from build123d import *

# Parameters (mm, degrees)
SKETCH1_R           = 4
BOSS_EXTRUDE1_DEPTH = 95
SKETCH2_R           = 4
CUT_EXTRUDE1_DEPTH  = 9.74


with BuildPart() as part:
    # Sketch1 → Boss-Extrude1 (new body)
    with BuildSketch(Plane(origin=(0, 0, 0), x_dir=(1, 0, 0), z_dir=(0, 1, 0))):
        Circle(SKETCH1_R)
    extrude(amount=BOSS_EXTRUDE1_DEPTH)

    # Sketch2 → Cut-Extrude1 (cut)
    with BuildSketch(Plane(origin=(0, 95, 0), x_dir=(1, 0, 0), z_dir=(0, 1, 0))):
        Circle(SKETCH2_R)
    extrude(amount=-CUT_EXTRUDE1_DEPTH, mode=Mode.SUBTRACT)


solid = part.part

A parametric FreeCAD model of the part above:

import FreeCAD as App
import Part
import Sketcher

V = App.Vector
Q = App.Units.Quantity

doc = App.newDocument("Part")
body = doc.addObject("PartDesign::Body", "Body")

sketch1 = body.newObject("Sketcher::SketchObject", "Sketch")
sketch1.AttachmentSupport = (doc.getObject("XZ_Plane"), [""])
sketch1.MapMode = "FlatFace"
sketch1.addGeometry(Part.Circle(V(0, 0, 0), V(0, 0, 1), 4), False)
sketch1.addConstraint([
    Sketcher.Constraint("Coincident", 0, 3, -1, 1),
    Sketcher.Constraint("Diameter", 0, Q("8 mm")),
])
pad1 = body.newObject("PartDesign::Pad", "Pad")
pad1.Profile = sketch1
pad1.Length = 95
pad1.Reversed = True

sketch2 = body.newObject("Sketcher::SketchObject", "Sketch001")
sketch2.AttachmentSupport = (doc.getObject("XZ_Plane"), [""])
sketch2.MapMode = "FlatFace"
sketch2.AttachmentOffset = App.Placement(V(0, 0, -95), App.Rotation())
sketch2.addGeometry(Part.Circle(V(0, 0, 0), V(0, 0, 1), 4), False)
sketch2.addConstraint([
    Sketcher.Constraint("Coincident", 0, 3, -1, 1),
    Sketcher.Constraint("Diameter", 0, Q("8 mm")),
])
pocket1 = body.newObject("PartDesign::Pocket", "Pocket")
pocket1.Profile = sketch2
pocket1.Length = 9.74
pocket1.Reversed = True

doc.recompute()
